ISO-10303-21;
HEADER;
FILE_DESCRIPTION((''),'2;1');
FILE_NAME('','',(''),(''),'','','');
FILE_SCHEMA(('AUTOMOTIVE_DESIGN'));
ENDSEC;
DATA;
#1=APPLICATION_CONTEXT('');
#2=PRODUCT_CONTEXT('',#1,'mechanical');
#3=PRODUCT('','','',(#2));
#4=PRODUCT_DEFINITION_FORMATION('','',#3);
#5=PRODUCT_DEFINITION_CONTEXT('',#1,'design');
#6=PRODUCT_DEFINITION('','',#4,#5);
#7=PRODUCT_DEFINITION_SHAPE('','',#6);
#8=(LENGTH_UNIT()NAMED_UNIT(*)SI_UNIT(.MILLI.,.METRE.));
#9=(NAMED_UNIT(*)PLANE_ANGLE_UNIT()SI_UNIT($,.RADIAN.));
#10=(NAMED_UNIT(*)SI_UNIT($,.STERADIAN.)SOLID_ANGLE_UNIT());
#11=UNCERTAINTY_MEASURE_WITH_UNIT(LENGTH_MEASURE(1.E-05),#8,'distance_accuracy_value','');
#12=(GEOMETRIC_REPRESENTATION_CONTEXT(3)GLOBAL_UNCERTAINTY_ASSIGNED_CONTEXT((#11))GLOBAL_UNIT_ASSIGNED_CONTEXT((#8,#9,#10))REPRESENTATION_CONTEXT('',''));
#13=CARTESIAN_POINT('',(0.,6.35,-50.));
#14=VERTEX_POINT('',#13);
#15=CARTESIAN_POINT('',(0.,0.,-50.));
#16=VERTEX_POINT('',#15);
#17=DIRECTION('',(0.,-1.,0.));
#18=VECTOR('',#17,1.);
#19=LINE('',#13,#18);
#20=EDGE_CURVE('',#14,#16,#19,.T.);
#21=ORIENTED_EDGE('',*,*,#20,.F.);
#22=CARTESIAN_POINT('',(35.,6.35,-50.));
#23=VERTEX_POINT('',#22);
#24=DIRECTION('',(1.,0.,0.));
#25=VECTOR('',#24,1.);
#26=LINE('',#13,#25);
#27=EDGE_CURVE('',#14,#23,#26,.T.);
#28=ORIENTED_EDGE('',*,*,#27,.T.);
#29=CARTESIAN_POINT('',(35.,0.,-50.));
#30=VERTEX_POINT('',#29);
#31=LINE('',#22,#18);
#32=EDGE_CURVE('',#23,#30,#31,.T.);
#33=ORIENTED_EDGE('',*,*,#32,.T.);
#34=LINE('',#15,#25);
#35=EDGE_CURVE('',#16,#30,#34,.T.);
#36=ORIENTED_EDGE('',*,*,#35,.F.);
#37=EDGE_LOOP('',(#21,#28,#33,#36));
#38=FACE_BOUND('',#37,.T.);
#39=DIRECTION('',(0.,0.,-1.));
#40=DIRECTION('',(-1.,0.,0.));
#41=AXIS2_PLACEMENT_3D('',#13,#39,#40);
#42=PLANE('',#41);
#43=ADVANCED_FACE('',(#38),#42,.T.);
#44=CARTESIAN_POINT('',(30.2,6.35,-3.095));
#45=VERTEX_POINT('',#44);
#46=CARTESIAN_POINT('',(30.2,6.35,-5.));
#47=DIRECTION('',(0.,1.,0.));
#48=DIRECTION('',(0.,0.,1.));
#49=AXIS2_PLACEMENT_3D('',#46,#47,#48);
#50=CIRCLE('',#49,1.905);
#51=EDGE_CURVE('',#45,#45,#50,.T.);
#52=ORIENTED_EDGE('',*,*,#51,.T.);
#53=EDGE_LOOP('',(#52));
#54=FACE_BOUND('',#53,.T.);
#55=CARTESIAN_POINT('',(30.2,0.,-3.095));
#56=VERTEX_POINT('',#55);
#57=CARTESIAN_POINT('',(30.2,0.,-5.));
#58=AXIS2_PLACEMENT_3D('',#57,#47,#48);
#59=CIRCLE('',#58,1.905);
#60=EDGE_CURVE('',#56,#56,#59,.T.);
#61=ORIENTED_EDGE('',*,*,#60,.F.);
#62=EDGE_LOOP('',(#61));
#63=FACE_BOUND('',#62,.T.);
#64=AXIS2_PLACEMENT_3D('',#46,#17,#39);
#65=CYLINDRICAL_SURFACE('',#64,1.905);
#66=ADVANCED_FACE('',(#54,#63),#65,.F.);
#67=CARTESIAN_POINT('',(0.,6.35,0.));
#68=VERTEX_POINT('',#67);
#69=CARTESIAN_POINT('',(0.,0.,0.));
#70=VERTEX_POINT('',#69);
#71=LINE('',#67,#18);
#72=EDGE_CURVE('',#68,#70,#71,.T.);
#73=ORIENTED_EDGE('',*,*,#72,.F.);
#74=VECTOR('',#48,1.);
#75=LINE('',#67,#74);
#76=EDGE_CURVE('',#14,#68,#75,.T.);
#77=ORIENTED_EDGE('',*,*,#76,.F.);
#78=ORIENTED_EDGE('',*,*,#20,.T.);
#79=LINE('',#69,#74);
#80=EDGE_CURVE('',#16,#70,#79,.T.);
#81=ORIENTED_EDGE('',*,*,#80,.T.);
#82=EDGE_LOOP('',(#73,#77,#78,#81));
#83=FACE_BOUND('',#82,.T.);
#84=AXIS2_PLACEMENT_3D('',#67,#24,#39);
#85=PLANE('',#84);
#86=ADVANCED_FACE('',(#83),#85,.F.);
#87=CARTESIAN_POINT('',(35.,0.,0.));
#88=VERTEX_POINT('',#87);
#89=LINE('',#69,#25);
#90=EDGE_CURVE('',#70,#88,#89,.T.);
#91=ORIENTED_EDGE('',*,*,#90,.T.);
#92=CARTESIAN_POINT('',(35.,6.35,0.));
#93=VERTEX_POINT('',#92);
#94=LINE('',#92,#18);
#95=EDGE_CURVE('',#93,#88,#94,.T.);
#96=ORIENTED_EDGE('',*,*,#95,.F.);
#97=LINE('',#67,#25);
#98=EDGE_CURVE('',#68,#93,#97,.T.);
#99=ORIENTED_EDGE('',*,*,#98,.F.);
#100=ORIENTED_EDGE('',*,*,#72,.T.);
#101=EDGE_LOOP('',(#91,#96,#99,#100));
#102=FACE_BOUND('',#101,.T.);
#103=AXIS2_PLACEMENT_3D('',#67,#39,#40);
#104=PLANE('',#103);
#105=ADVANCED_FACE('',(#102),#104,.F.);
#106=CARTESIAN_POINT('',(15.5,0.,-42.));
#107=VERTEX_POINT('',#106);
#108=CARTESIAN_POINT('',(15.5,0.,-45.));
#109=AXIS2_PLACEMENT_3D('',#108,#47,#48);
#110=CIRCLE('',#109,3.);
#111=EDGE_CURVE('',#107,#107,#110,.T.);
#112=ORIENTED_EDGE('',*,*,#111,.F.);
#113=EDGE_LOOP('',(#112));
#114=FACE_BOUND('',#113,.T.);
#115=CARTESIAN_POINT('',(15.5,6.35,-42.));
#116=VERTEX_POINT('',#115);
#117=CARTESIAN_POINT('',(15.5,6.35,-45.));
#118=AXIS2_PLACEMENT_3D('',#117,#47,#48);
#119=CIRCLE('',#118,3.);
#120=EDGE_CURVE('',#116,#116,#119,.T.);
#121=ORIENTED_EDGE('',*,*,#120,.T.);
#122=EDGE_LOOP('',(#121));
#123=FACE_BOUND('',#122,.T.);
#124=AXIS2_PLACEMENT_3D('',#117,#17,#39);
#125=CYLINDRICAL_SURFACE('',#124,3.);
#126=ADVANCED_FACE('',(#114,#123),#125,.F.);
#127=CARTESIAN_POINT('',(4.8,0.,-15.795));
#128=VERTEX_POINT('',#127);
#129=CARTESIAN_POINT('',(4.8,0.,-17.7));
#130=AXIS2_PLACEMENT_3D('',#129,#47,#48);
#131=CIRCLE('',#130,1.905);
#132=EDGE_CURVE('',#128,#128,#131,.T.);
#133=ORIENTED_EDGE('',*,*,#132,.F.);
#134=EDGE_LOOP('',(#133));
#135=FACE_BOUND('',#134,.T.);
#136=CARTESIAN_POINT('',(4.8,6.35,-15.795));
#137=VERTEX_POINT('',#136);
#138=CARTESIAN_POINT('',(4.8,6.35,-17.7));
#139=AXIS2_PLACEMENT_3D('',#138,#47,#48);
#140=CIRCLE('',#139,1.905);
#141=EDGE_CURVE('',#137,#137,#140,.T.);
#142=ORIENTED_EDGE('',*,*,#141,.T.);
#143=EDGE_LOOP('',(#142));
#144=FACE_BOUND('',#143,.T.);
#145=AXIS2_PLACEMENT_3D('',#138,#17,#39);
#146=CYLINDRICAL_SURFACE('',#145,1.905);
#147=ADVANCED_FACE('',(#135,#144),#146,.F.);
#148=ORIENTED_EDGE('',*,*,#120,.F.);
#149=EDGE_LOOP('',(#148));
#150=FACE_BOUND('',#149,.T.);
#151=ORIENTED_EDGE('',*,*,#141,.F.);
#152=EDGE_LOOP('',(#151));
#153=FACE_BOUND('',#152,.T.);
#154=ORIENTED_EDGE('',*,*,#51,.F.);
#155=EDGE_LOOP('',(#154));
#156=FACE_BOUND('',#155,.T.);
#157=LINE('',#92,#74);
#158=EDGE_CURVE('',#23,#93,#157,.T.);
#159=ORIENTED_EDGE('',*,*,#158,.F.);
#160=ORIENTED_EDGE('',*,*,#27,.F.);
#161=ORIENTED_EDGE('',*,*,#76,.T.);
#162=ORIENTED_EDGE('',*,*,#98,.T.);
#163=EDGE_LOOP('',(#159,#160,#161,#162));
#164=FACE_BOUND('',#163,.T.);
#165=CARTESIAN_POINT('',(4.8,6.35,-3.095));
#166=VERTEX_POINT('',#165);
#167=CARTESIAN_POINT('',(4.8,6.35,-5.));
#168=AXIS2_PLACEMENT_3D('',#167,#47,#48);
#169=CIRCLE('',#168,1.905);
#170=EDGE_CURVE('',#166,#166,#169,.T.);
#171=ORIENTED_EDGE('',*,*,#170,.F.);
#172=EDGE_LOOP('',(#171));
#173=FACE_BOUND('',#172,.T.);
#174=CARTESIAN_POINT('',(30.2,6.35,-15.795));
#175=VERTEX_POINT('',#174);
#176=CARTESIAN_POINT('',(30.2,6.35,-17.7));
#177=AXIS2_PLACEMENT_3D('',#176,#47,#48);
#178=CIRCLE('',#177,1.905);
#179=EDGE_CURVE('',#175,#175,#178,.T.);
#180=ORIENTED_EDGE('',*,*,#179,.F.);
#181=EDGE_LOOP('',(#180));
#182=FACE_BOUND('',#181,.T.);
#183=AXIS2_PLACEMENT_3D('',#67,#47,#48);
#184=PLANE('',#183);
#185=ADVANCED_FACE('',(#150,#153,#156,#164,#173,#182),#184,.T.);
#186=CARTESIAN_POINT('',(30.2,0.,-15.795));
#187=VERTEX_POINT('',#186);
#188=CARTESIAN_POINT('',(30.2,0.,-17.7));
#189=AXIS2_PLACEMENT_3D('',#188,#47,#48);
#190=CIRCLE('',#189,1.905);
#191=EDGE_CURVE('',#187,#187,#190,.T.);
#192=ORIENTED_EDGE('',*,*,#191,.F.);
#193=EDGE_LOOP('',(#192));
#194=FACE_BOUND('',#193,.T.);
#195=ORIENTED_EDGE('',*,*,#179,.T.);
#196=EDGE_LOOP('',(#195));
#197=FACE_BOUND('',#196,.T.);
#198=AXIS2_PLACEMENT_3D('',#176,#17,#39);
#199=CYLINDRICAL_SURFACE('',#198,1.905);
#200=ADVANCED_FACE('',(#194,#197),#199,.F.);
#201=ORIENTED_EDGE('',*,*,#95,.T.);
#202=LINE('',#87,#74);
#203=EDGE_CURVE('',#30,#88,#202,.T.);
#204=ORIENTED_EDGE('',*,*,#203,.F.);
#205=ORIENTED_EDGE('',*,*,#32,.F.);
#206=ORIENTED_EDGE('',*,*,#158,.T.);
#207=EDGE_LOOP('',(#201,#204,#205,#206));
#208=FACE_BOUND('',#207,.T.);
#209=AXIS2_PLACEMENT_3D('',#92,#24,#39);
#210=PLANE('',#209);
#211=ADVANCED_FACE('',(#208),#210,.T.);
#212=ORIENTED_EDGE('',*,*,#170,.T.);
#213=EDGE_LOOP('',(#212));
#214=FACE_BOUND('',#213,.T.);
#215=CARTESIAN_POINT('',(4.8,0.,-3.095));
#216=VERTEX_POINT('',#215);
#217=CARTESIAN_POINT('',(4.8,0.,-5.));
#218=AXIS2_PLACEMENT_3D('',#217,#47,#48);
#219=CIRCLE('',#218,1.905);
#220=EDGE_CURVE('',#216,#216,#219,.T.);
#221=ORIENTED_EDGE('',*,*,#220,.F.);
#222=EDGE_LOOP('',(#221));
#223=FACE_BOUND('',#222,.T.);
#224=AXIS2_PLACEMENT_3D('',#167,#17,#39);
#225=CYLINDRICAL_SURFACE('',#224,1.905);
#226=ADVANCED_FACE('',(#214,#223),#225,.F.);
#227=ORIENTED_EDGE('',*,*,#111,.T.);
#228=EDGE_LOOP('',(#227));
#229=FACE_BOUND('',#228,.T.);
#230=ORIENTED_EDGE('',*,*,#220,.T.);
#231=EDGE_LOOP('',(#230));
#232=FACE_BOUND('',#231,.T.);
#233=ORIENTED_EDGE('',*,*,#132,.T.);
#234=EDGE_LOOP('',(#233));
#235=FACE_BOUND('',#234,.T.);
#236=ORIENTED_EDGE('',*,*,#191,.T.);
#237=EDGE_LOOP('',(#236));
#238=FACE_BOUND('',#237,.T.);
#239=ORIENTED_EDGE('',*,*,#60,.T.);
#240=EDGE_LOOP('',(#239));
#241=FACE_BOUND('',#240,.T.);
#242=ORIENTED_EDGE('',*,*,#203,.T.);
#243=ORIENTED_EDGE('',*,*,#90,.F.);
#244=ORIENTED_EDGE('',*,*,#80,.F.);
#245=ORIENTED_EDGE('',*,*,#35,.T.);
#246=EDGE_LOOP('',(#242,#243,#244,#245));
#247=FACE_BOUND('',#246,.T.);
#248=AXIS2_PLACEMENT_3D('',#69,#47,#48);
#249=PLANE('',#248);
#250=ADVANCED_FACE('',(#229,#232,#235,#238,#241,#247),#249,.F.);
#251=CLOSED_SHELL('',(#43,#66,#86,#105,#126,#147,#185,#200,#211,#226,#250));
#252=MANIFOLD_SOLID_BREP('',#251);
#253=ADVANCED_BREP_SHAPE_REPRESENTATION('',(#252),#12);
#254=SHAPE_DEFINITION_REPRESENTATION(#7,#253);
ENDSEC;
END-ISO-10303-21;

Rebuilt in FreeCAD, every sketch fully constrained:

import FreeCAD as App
import Part
import Sketcher


def add_polygon(sketch, points):
    """Adds a closed chain of lines whose ends are joined by coincident constraints."""
    first, n = sketch.GeometryCount, len(points)
    for a, b in zip(points, points[1:] + points[:1]):
        sketch.addGeometry(Part.LineSegment(App.Vector(*a, 0), App.Vector(*b, 0)), False)
    for i in range(n):
        sketch.addConstraint(Sketcher.Constraint("Coincident", first + i, 2, first + (i + 1) % n, 1))

doc = App.newDocument("Part")
body = doc.addObject("PartDesign::Body", "Body")

# Sketch on XZ plane
sketch1 = doc.addObject("Sketcher::SketchObject", "Sketch")
body.addObject(sketch1)
sketch1.AttachmentSupport = (doc.XZ_Plane, [""])
sketch1.MapMode = "FlatFace"
add_polygon(sketch1, [(0, -50), (0, 0), (35, 0), (35, -50)])  # lines 0-3
sketch1.addGeometry(Part.Circle(App.Vector(4.8, -5, 0), App.Vector(0, 0, 1), 1.9), False)  # 4
sketch1.addGeometry(Part.Circle(App.Vector(4.8, -17.7, 0), App.Vector(0, 0, 1), 1.9), False)  # 5
sketch1.addGeometry(Part.Circle(App.Vector(30.2, -5, 0), App.Vector(0, 0, 1), 1.9), False)  # 6
sketch1.addGeometry(Part.Circle(App.Vector(30.2, -17.7, 0), App.Vector(0, 0, 1), 1.9), False)  # 7
sketch1.addGeometry(Part.Circle(App.Vector(15.5, -45, 0), App.Vector(0, 0, 1), 3), False)  # 8
sketch1.addConstraint(Sketcher.Constraint("Vertical", 0))
sketch1.addConstraint(Sketcher.Constraint("Horizontal", 1))
sketch1.addConstraint(Sketcher.Constraint("Vertical", 2))
sketch1.addConstraint(Sketcher.Constraint("Horizontal", 3))
sketch1.addConstraint(Sketcher.Constraint("Coincident", 0, 2, -1, 1))
sketch1.addConstraint(Sketcher.Constraint("Equal", 4, 5))
sketch1.addConstraint(Sketcher.Constraint("Equal", 5, 6))
sketch1.addConstraint(Sketcher.Constraint("Equal", 6, 7))
sketch1.addConstraint(Sketcher.Constraint("Horizontal", 4, 3, 6, 3))
sketch1.addConstraint(Sketcher.Constraint("Horizontal", 5, 3, 7, 3))
sketch1.addConstraint(Sketcher.Constraint("Vertical", 4, 3, 5, 3))
sketch1.addConstraint(Sketcher.Constraint("Vertical", 6, 3, 7, 3))
sketch1.addConstraint(Sketcher.Constraint("Diameter", 8, 6.0))
sketch1.addConstraint(Sketcher.Constraint("Diameter", 4, 3.81))
sketch1.addConstraint(Sketcher.Constraint("DistanceX", 1, 1, 1, 2, 35.0))
sketch1.addConstraint(Sketcher.Constraint("DistanceY", 0, 1, 0, 2, 50.0))
sketch1.addConstraint(Sketcher.Constraint("DistanceY", 4, 3, -1, 1, 5.0))
sketch1.addConstraint(Sketcher.Constraint("DistanceY", 8, 3, -1, 1, 45.0))
sketch1.addConstraint(Sketcher.Constraint("DistanceX", -1, 1, 4, 3, 4.8))
sketch1.addConstraint(Sketcher.Constraint("DistanceY", 5, 3, -1, 1, 17.7))
sketch1.addConstraint(Sketcher.Constraint("DistanceX", -1, 1, 6, 3, 30.2))
sketch1.addConstraint(Sketcher.Constraint("DistanceX", -1, 1, 8, 3, 15.5))
pad1 = doc.addObject("PartDesign::Pad", "Pad")
body.addObject(pad1)
pad1.Profile = sketch1
pad1.Length = 6.35
pad1.Reversed = True

doc.recompute()
